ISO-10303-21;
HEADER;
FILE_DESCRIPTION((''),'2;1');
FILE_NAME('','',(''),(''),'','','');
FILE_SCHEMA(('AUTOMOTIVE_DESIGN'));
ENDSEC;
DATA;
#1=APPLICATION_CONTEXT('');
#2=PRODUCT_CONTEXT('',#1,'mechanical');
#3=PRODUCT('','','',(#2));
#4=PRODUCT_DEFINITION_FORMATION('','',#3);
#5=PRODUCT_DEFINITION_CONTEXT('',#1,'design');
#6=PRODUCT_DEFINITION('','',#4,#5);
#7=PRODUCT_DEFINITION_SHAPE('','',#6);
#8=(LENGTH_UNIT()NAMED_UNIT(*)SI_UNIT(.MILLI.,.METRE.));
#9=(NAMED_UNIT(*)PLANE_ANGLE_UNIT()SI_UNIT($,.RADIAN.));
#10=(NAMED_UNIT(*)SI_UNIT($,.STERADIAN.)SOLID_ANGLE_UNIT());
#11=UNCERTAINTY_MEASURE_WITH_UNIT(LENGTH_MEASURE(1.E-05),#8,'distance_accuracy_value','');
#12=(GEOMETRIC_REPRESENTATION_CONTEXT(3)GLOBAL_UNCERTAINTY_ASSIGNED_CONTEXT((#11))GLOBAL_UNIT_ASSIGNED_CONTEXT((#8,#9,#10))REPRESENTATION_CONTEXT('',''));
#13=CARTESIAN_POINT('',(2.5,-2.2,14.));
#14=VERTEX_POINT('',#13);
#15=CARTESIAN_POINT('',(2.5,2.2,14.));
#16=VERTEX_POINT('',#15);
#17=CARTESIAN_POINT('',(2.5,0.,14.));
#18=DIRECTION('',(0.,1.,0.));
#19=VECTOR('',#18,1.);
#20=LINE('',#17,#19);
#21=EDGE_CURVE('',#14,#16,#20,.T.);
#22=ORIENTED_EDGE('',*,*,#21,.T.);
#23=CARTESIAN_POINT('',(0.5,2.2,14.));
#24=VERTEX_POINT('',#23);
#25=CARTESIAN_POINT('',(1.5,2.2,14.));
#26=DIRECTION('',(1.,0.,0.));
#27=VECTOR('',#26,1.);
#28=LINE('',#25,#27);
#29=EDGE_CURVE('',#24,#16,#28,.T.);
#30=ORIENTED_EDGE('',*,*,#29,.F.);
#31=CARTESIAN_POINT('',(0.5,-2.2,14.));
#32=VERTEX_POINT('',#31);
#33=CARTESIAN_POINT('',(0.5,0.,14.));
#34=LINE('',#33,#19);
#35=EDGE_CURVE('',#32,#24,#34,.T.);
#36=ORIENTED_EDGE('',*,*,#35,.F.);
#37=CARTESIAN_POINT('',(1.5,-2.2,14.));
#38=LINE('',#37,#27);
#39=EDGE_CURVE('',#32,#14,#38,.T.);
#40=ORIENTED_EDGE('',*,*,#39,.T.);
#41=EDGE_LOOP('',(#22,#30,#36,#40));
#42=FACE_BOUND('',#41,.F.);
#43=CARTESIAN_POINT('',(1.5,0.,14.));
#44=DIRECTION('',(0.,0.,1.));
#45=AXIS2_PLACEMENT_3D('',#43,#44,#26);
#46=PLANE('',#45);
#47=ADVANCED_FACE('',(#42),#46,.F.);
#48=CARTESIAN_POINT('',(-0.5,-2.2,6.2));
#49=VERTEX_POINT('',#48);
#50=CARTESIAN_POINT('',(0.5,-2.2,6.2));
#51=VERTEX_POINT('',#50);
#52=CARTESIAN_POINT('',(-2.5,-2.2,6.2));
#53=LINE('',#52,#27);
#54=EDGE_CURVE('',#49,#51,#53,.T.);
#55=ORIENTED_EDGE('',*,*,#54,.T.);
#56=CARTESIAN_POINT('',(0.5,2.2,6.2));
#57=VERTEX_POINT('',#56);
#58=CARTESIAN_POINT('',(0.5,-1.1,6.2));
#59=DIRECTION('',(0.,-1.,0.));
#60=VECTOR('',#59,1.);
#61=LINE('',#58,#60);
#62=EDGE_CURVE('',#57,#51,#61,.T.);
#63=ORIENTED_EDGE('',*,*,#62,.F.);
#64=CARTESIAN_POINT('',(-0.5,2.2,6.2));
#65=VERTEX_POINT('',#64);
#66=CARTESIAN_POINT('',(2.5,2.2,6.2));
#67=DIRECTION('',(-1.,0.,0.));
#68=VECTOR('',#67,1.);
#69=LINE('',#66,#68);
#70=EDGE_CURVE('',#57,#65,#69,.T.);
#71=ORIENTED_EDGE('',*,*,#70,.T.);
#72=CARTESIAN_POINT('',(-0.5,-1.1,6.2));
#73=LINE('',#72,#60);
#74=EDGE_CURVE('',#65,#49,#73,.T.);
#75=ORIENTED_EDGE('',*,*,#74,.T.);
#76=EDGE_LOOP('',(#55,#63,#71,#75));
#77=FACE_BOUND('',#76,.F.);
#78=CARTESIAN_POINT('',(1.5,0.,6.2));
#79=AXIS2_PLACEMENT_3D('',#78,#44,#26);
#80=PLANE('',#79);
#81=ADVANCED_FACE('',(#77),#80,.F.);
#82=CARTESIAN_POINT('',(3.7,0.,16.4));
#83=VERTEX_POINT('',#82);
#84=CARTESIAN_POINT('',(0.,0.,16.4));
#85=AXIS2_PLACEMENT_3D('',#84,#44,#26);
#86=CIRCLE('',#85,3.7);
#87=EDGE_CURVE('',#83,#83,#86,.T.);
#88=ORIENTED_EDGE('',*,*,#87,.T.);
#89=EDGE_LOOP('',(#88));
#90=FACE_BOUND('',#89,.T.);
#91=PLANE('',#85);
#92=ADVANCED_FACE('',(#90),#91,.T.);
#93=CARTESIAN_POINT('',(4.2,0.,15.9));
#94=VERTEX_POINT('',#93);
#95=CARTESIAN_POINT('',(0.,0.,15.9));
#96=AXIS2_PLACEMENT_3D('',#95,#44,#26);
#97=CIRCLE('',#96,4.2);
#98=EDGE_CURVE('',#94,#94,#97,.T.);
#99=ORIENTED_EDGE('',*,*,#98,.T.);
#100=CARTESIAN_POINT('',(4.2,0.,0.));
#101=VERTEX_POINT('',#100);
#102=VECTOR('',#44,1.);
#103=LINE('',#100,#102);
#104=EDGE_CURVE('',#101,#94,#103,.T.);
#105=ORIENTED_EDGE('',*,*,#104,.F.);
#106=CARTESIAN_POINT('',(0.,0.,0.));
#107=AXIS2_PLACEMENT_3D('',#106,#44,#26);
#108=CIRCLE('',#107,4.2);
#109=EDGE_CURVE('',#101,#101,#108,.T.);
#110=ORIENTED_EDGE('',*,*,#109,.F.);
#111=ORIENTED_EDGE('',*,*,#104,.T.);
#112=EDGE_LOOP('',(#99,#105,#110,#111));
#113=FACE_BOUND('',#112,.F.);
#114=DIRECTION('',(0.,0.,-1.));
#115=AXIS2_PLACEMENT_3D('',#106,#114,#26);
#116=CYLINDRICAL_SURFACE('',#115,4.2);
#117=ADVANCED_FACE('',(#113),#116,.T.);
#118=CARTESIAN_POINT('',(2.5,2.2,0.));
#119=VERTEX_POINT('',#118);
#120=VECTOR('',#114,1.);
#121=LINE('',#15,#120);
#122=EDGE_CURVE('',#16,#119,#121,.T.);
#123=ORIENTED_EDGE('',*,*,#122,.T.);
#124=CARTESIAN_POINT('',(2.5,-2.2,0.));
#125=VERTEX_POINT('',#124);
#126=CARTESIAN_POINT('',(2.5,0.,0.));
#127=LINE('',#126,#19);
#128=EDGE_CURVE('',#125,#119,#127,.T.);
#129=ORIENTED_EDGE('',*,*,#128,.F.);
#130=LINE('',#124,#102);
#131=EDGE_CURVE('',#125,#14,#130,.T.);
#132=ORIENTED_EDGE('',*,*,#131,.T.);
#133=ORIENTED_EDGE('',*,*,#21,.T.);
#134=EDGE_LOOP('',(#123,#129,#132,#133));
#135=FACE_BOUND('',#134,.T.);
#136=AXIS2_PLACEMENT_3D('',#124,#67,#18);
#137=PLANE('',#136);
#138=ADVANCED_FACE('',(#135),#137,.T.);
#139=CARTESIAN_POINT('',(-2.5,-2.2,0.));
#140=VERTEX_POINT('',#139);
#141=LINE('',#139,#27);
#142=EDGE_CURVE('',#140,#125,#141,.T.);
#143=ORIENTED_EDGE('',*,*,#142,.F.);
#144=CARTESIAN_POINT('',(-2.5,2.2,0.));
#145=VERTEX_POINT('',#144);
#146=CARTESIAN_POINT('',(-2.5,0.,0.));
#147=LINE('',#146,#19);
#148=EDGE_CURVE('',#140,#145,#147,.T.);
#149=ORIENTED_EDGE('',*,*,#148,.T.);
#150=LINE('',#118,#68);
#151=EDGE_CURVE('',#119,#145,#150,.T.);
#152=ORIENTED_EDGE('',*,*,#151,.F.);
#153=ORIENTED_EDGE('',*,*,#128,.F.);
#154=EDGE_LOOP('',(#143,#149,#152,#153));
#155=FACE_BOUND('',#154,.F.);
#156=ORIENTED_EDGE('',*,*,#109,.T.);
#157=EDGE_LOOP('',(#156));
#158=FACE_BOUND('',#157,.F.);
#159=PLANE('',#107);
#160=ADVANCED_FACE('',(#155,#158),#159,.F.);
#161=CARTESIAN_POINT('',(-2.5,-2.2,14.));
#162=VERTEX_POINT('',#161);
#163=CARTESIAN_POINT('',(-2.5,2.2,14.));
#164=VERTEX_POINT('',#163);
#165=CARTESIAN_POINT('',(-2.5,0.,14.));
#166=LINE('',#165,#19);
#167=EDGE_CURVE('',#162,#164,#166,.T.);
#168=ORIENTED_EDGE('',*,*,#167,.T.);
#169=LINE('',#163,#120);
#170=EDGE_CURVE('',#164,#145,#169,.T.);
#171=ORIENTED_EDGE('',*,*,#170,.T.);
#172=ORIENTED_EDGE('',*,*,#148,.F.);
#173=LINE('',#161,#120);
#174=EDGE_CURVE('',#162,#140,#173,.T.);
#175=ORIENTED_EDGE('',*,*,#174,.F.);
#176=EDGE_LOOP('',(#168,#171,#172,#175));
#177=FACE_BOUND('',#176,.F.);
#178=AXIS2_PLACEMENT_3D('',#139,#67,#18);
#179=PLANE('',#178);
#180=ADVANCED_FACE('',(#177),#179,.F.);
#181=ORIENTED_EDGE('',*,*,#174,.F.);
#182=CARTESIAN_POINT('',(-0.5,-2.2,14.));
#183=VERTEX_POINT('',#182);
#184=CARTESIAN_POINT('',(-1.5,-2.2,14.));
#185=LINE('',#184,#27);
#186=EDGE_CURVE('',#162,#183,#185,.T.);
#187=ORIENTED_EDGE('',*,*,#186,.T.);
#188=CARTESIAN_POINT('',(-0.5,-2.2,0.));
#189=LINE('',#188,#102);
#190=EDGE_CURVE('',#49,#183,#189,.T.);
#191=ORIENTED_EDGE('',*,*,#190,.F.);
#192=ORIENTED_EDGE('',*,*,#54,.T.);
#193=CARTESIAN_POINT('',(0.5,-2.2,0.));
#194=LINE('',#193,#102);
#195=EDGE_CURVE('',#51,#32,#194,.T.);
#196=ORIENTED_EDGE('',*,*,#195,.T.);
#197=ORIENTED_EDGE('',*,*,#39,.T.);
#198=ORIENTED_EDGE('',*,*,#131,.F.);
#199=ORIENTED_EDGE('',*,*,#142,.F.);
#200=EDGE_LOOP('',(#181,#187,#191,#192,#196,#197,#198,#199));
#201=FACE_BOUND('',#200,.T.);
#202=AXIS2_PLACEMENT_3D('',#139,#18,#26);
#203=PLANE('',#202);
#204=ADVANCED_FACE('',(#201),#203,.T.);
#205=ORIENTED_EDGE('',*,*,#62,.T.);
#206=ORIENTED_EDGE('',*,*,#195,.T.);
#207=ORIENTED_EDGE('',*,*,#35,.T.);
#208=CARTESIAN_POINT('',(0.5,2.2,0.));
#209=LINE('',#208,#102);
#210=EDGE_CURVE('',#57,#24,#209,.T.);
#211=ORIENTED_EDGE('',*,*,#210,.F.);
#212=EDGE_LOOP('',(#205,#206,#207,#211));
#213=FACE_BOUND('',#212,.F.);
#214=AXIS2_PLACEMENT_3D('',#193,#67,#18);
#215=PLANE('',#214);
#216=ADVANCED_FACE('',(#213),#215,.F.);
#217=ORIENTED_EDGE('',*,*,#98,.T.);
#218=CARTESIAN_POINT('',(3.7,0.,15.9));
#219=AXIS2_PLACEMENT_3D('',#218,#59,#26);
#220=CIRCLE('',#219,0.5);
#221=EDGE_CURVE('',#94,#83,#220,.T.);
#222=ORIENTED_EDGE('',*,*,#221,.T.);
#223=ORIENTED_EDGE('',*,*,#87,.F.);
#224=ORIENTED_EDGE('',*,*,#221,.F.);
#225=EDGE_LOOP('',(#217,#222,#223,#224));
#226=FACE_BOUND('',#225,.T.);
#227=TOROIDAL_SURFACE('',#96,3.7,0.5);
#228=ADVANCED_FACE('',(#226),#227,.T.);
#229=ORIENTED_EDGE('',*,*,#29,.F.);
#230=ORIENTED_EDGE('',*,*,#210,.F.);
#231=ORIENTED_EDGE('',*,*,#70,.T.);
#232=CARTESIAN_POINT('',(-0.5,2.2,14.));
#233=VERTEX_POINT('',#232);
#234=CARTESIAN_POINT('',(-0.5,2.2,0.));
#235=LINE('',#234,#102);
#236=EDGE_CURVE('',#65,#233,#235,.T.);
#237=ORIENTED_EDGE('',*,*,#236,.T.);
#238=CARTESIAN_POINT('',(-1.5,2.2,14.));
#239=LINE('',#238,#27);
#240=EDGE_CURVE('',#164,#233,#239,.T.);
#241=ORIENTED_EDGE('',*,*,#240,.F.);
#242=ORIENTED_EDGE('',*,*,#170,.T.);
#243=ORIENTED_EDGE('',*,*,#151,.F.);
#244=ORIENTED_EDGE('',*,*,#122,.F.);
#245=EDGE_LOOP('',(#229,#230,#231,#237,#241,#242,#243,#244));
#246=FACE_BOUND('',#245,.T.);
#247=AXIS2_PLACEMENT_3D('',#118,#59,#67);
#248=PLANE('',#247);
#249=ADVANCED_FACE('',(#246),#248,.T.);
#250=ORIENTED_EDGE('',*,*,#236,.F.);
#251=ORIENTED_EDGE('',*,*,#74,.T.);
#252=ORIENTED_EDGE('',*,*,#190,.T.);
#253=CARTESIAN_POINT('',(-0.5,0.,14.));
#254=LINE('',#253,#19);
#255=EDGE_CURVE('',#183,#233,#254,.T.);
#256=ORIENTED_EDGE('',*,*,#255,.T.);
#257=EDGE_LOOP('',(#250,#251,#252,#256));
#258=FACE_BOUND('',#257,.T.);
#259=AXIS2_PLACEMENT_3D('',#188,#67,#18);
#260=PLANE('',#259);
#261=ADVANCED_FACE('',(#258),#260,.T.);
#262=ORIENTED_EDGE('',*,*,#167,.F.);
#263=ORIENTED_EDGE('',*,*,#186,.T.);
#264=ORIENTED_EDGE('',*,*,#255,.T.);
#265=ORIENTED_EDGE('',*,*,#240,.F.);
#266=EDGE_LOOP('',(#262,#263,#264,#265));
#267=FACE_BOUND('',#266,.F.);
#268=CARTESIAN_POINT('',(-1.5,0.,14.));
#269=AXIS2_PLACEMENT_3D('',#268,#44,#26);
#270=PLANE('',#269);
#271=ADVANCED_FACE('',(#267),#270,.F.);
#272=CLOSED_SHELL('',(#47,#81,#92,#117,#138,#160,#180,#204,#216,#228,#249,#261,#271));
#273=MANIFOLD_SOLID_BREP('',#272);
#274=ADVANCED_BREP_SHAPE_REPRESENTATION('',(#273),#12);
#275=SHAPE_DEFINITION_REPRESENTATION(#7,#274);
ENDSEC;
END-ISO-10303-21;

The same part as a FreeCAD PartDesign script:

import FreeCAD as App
import Part
import Sketcher

V = App.Vector
Q = App.Units.Quantity


def edges_at(feature, points):
    """Names of the edges that pass closest to the given points."""
    edges = feature.Shape.Edges
    near = lambda p: min(range(len(edges)), key=lambda i: edges[i].distToShape(Part.Vertex(*p))[0])
    return sorted({f"Edge{near(p) + 1}" for p in points})

doc = App.newDocument("Part")
body = doc.addObject("PartDesign::Body", "Body")

# Sketch on XY plane
sketch1 = body.newObject("Sketcher::SketchObject", "Sketch")
sketch1.AttachmentSupport = (doc.getObject("XY_Plane"), [""])
sketch1.MapMode = "FlatFace"
sketch1.addGeometry(Part.Circle(V(0, 0, 0), V(0, 0, 1), 4.2), False)
sketch1.addConstraint(Sketcher.Constraint("Coincident", 0, 3, -1, 1))
sketch1.addConstraint(Sketcher.Constraint("Diameter", 0, Q("8.4 mm")))
pad1 = body.newObject("PartDesign::Pad", "Pad")
pad1.Profile = sketch1
pad1.Length = 16.4

# Sketch on XY plane
sketch2 = body.newObject("Sketcher::SketchObject", "Sketch001")
sketch2.AttachmentSupport = (doc.getObject("XY_Plane"), [""])
sketch2.MapMode = "FlatFace"
sketch2.addGeometry(Part.LineSegment(V(2.5, -2.2, 0), V(2.5, 2.2, 0)), False)
sketch2.addGeometry(Part.LineSegment(V(2.5, 2.2, 0), V(-2.5, 2.2, 0)), False)
sketch2.addGeometry(Part.LineSegment(V(-2.5, 2.2, 0), V(-2.5, -2.2, 0)), False)
sketch2.addGeometry(Part.LineSegment(V(-2.5, -2.2, 0), V(2.5, -2.2, 0)), False)
sketch2.addConstraint(Sketcher.Constraint("Coincident", 0, 2, 1, 1))
sketch2.addConstraint(Sketcher.Constraint("Coincident", 1, 2, 2, 1))
sketch2.addConstraint(Sketcher.Constraint("Coincident", 2, 2, 3, 1))
sketch2.addConstraint(Sketcher.Constraint("Coincident", 3, 2, 0, 1))
sketch2.addConstraint(Sketcher.Constraint("Vertical", 0))
sketch2.addConstraint(Sketcher.Constraint("Horizontal", 1))
sketch2.addConstraint(Sketcher.Constraint("Vertical", 2))
sketch2.addConstraint(Sketcher.Constraint("Horizontal", 3))
sketch2.addConstraint(Sketcher.Constraint("Symmetric", 0, 2, 2, 2, -1, 1))
sketch2.addConstraint(Sketcher.Constraint("DistanceX", 1, 2, 1, 1, Q("5 mm")))
sketch2.addConstraint(Sketcher.Constraint("DistanceY", 0, 1, 0, 2, Q("4.4 mm")))
pocket1 = body.newObject("PartDesign::Pocket", "Pocket")
pocket1.Profile = sketch2
pocket1.Length = 6.2
pocket1.Reversed = True

# Sketch on XY plane
sketch3 = body.newObject("Sketcher::SketchObject", "Sketch002")
sketch3.AttachmentSupport = (doc.getObject("XY_Plane"), [""])
sketch3.MapMode = "FlatFace"
sketch3.addGeometry(Part.LineSegment(V(0.5, 2.2, 0), V(0.5, -2.2, 0)), False)
sketch3.addGeometry(Part.LineSegment(V(0.5, -2.2, 0), V(2.5, -2.2, 0)), False)
sketch3.addGeometry(Part.LineSegment(V(2.5, -2.2, 0), V(2.5, 2.2, 0)), False)
sketch3.addGeometry(Part.LineSegment(V(2.5, 2.2, 0), V(0.5, 2.2, 0)), False)
sketch3.addGeometry(Part.LineSegment(V(-2.5, 2.2, 0), V(-2.5, -2.2, 0)), False)
sketch3.addGeometry(Part.LineSegment(V(-2.5, -2.2, 0), V(-0.5, -2.2, 0)), False)
sketch3.addGeometry(Part.LineSegment(V(-0.5, -2.2, 0), V(-0.5, 2.2, 0)), False)
sketch3.addGeometry(Part.LineSegment(V(-0.5, 2.2, 0), V(-2.5, 2.2, 0)), False)
sketch3.addConstraint(Sketcher.Constraint("Coincident", 0, 2, 1, 1))
sketch3.addConstraint(Sketcher.Constraint("Coincident", 1, 2, 2, 1))
sketch3.addConstraint(Sketcher.Constraint("Coincident", 2, 2, 3, 1))
sketch3.addConstraint(Sketcher.Constraint("Coincident", 3, 2, 0, 1))
sketch3.addConstraint(Sketcher.Constraint("Coincident", 4, 2, 5, 1))
sketch3.addConstraint(Sketcher.Constraint("Coincident", 5, 2, 6, 1))
sketch3.addConstraint(Sketcher.Constraint("Coincident", 6, 2, 7, 1))
sketch3.addConstraint(Sketcher.Constraint("Coincident", 7, 2, 4, 1))
sketch3.addConstraint(Sketcher.Constraint("Vertical", 0))
sketch3.addConstraint(Sketcher.Constraint("Horizontal", 1))
sketch3.addConstraint(Sketcher.Constraint("Vertical", 2))
sketch3.addConstraint(Sketcher.Constraint("Horizontal", 3))
sketch3.addConstraint(Sketcher.Constraint("Vertical", 4))
sketch3.addConstraint(Sketcher.Constraint("Horizontal", 5))
sketch3.addConstraint(Sketcher.Constraint("Vertical", 6))
sketch3.addConstraint(Sketcher.Constraint("Horizontal", 7))
sketch3.addConstraint(Sketcher.Constraint("Symmetric", 2, 2, 4, 2, -1, 1))
sketch3.addConstraint(Sketcher.Constraint("Symmetric", 0, 2, 6, 2, -1, 1))
sketch3.addConstraint(Sketcher.Constraint("Horizontal", 1, 2, 4, 2))
sketch3.addConstraint(Sketcher.Constraint("DistanceX", 1, 1, 1, 2, Q("2 mm")))
sketch3.addConstraint(Sketcher.Constraint("DistanceY", 0, 2, 0, 1, Q("4.4 mm")))
sketch3.addConstraint(Sketcher.Constraint("DistanceX", 4, 2, 0, 2, Q("3 mm")))
pocket2 = body.newObject("PartDesign::Pocket", "Pocket001")
pocket2.Profile = sketch3
pocket2.Length = 14
pocket2.Reversed = True
doc.recompute()

fillet = body.newObject("PartDesign::Fillet", "Fillet")
fillet.Base = (pocket2, edges_at(pocket2, [(-4.2, 0, 16.4)]))
fillet.Radius = 0.5

doc.recompute()
